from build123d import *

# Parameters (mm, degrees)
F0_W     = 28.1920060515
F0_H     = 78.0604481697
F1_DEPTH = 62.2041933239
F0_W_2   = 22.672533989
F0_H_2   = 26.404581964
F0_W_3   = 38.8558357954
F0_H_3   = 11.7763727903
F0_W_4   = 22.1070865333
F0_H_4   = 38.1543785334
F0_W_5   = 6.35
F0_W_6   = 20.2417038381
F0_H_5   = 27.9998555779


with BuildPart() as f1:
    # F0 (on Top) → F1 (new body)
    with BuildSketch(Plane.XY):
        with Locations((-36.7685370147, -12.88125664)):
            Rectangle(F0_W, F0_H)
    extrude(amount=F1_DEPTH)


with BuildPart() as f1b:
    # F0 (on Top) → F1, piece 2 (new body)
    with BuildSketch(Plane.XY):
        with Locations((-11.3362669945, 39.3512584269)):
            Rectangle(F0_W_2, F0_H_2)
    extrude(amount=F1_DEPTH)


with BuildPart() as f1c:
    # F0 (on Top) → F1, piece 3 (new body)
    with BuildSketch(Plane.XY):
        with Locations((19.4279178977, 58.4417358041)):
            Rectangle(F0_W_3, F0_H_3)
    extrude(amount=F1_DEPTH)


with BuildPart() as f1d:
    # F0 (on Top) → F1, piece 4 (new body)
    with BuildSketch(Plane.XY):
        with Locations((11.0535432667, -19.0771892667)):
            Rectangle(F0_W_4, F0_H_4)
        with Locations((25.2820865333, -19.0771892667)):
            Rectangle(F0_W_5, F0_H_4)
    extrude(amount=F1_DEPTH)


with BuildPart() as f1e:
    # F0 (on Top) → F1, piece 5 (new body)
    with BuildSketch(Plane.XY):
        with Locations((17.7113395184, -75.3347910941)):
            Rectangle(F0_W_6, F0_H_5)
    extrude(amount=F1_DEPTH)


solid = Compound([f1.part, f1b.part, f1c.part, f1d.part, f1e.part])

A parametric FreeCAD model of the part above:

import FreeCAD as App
import Part
import Sketcher

V = App.Vector

doc = App.newDocument("Part")
body = doc.addObject("PartDesign::Body", "Body")

sketch1 = body.newObject("Sketcher::SketchObject", "Sketch")
sketch1.AttachmentSupport = (doc.getObject("XY_Plane"), [""])
sketch1.MapMode = "FlatFace"
sketch1.addGeometry([
    Part.LineSegment(V(-50.86454, 26.148967, 0), V(-50.86454, -51.911481, 0)),
    Part.LineSegment(V(-50.86454, -51.911481, 0), V(-22.672534, -51.911481, 0)),
    Part.LineSegment(V(-22.672534, -51.911481, 0), V(-22.672534, 26.148967, 0)),
    Part.LineSegment(V(-22.672534, 26.148967, 0), V(-50.86454, 26.148967, 0)),
], False)
sketch1.addConstraint([
    Sketcher.Constraint("Coincident", 0, 2, 1, 1),
    Sketcher.Constraint("Coincident", 1, 2, 2, 1),
    Sketcher.Constraint("Coincident", 2, 2, 3, 1),
    Sketcher.Constraint("Coincident", 3, 2, 0, 1),
    Sketcher.Constraint("Vertical", 0),
    Sketcher.Constraint("Horizontal", 1),
    Sketcher.Constraint("Vertical", 2),
    Sketcher.Constraint("Horizontal", 3),
    Sketcher.Constraint("DistanceY", 0, 2, 0, 1, 78.060448),
    Sketcher.Constraint("DistanceX", 1, 1, 1, 2, 28.192006),
    Sketcher.Constraint("DistanceX", 0, 2, -1, 1, 50.86454),
    Sketcher.Constraint("DistanceY", 0, 2, -1, 1, 51.911481),
])
pad1 = body.newObject("PartDesign::Pad", "Pad")
pad1.Profile = sketch1
pad1.Length = 62.204193
body2 = doc.addObject("PartDesign::Body", "Body001")

sketch2 = body2.newObject("Sketcher::SketchObject", "Sketch001")
sketch2.AttachmentSupport = (doc.getObject("XY_Plane001"), [""])
sketch2.MapMode = "FlatFace"
sketch2.addGeometry([
    Part.LineSegment(V(-22.672534, 52.553549, 0), V(-22.672534, 26.148967, 0)),
    Part.LineSegment(V(-22.672534, 26.148967, 0), V(0, 26.148967, 0)),
    Part.LineSegment(V(0, 26.148967, 0), V(0, 52.553549, 0)),
    Part.LineSegment(V(0, 52.553549, 0), V(-22.672534, 52.553549, 0)),
], False)
sketch2.addConstraint([
    Sketcher.Constraint("Coincident", 0, 2, 1, 1),
    Sketcher.Constraint("Coincident", 1, 2, 2, 1),
    Sketcher.Constraint("Coincident", 2, 2, 3, 1),
    Sketcher.Constraint("Coincident", 3, 2, 0, 1),
    Sketcher.Constraint("Vertical", 0),
    Sketcher.Constraint("Horizontal", 1),
    Sketcher.Constraint("Vertical", 2),
    Sketcher.Constraint("Horizontal", 3),
    Sketcher.Constraint("PointOnObject", 1, 2, -2),
    Sketcher.Constraint("DistanceY", 0, 2, 0, 1, 26.404582),
    Sketcher.Constraint("DistanceX", 1, 1, 1, 2, 22.672534),
    Sketcher.Constraint("DistanceY", -1, 1, 2, 2, 52.553549),
])
pad2 = body2.newObject("PartDesign::Pad", "Pad001")
pad2.Profile = sketch2
pad2.Length = 62.204193
body3 = doc.addObject("PartDesign::Body", "Body002")

sketch3 = body3.newObject("Sketcher::SketchObject", "Sketch002")
sketch3.AttachmentSupport = (doc.getObject("XY_Plane002"), [""])
sketch3.MapMode = "FlatFace"
sketch3.addGeometry([
    Part.LineSegment(V(0, 64.329922, 0), V(0, 52.553549, 0)),
    Part.LineSegment(V(0, 52.553549, 0), V(38.855836, 52.553549, 0)),
    Part.LineSegment(V(38.855836, 52.553549, 0), V(38.855836, 64.329922, 0)),
    Part.LineSegment(V(38.855836, 64.329922, 0), V(0, 64.329922, 0)),
], False)
sketch3.addConstraint([
    Sketcher.Constraint("Coincident", 0, 2, 1, 1),
    Sketcher.Constraint("Coincident", 1, 2, 2, 1),
    Sketcher.Constraint("Coincident", 2, 2, 3, 1),
    Sketcher.Constraint("Coincident", 3, 2, 0, 1),
    Sketcher.Constraint("Vertical", 0),
    Sketcher.Constraint("Horizontal", 1),
    Sketcher.Constraint("Vertical", 2),
    Sketcher.Constraint("Horizontal", 3),
    Sketcher.Constraint("PointOnObject", 0, 2, -2),
    Sketcher.Constraint("DistanceX", 1, 1, 1, 2, 38.855836),
    Sketcher.Constraint("DistanceY", 0, 2, 0, 1, 11.776373),
    Sketcher.Constraint("DistanceY", -1, 1, 0, 2, 52.553549),
])
pad3 = body3.newObject("PartDesign::Pad", "Pad002")
pad3.Profile = sketch3
pad3.Length = 62.204193
body4 = doc.addObject("PartDesign::Body", "Body003")

sketch4 = body4.newObject("Sketcher::SketchObject", "Sketch003")
sketch4.AttachmentSupport = (doc.getObject("XY_Plane003"), [""])
sketch4.MapMode = "FlatFace"
sketch4.addGeometry([
    Part.LineSegment(V(0, 0, 0), V(0, -38.154379, 0)),
    Part.LineSegment(V(0, -38.154379, 0), V(28.457087, -38.154379, 0)),
    Part.LineSegment(V(28.457087, -38.154379, 0), V(28.457087, 0, 0)),
    Part.LineSegment(V(28.457087, 0, 0), V(0, 0, 0)),
], False)
sketch4.addConstraint([
    Sketcher.Constraint("Coincident", 0, 2, 1, 1),
    Sketcher.Constraint("Coincident", 1, 2, 2, 1),
    Sketcher.Constraint("Coincident", 2, 2, 3, 1),
    Sketcher.Constraint("Coincident", 3, 2, 0, 1),
    Sketcher.Constraint("Vertical", 0),
    Sketcher.Constraint("Horizontal", 1),
    Sketcher.Constraint("Vertical", 2),
    Sketcher.Constraint("Horizontal", 3),
    Sketcher.Constraint("Coincident", 3, 2, -1, 1),
    Sketcher.Constraint("DistanceY", 0, 2, 0, 1, 38.154379),
    Sketcher.Constraint("DistanceX", 1, 1, 1, 2, 28.457087),
])
pad4 = body4.newObject("PartDesign::Pad", "Pad003")
pad4.Profile = sketch4
pad4.Length = 62.204193
body5 = doc.addObject("PartDesign::Body", "Body004")

sketch5 = body5.newObject("Sketcher::SketchObject", "Sketch004")
sketch5.AttachmentSupport = (doc.getObject("XY_Plane004"), [""])
sketch5.MapMode = "FlatFace"
sketch5.addGeometry([
    Part.LineSegment(V(7.590488, -61.334863, 0), V(7.590488, -89.334719, 0)),
    Part.LineSegment(V(7.590488, -89.334719, 0), V(27.832191, -89.334719, 0)),
    Part.LineSegment(V(27.832191, -89.334719, 0), V(27.832191, -61.334863, 0)),
    Part.LineSegment(V(27.832191, -61.334863, 0), V(7.590488, -61.334863, 0)),
], False)
sketch5.addConstraint([
    Sketcher.Constraint("Coincident", 0, 2, 1, 1),
    Sketcher.Constraint("Coincident", 1, 2, 2, 1),
    Sketcher.Constraint("Coincident", 2, 2, 3, 1),
    Sketcher.Constraint("Coincident", 3, 2, 0, 1),
    Sketcher.Constraint("Vertical", 0),
    Sketcher.Constraint("Horizontal", 1),
    Sketcher.Constraint("Vertical", 2),
    Sketcher.Constraint("Horizontal", 3),
    Sketcher.Constraint("DistanceX", 1, 1, 1, 2, 20.241704),
    Sketcher.Constraint("DistanceY", 0, 2, 0, 1, 27.999856),
    Sketcher.Constraint("DistanceY", 0, 2, -1, 1, 89.334719),
    Sketcher.Constraint("DistanceX", -1, 1, 1, 2, 27.832191),
])
pad5 = body5.newObject("PartDesign::Pad", "Pad004")
pad5.Profile = sketch5
pad5.Length = 62.204193

doc.recompute()
